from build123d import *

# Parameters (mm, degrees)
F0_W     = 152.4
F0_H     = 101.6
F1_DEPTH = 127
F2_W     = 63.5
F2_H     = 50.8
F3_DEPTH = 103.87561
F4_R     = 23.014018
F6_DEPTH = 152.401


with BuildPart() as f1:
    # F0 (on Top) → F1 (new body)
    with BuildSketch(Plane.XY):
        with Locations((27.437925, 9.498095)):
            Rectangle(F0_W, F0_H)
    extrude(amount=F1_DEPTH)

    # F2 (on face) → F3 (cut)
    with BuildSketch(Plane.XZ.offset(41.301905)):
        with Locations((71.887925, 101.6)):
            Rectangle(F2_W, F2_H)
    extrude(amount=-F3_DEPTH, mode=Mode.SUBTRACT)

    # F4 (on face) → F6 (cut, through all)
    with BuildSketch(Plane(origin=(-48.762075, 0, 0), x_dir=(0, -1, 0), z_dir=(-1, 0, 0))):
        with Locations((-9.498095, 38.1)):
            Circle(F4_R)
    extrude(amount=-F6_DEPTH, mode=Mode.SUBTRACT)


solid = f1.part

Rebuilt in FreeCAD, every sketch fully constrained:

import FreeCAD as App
import Part
import Sketcher
from FreeCAD import Vector
Q = App.Units.Quantity

doc = App.newDocument("Part")
params = doc.addObject("Spreadsheet::Sheet", "Params")
for row, (alias, value) in enumerate([
    ("sketch1_width", "6 in"),
    ("sketch1_height", "4 in"),
    ("pad1_length", "5 in"),
    ("sketch2_height", "2 in"),
    ("sketch2_width", "2.5 in"),
    ("pocket1_length", "103.87561 mm"),
], start=1):
    params.set(f"A{row}", alias)
    params.set(f"B{row}", "=" + value)
    params.setAlias(f"B{row}", alias)

body = doc.addObject("PartDesign::Body", "Body")

# Sketch on XY plane
sketch1 = body.newObject("Sketcher::SketchObject", "Sketch")
sketch1.AttachmentSupport = (doc.getObject("XY_Plane"), [""])
sketch1.MapMode = "FlatFace"
sketch1.addGeometry([
    Part.LineSegment(Vector(-49, 60, 0), Vector(-49, -41, 0)),
    Part.LineSegment(Vector(-49, -41, 0), Vector(104, -41, 0)),
    Part.LineSegment(Vector(104, -41, 0), Vector(104, 60, 0)),
    Part.LineSegment(Vector(104, 60, 0), Vector(-49, 60, 0)),
], False)
sketch1.addConstraint([
    Sketcher.Constraint("Coincident", 0, 2, 1, 1),
    Sketcher.Constraint("Coincident", 1, 2, 2, 1),
    Sketcher.Constraint("Coincident", 2, 2, 3, 1),
    Sketcher.Constraint("Coincident", 3, 2, 0, 1),
    Sketcher.Constraint("Vertical", 0),
    Sketcher.Constraint("Horizontal", 1),
    Sketcher.Constraint("Vertical", 2),
    Sketcher.Constraint("Horizontal", 3),
    Sketcher.Constraint("DistanceX", 1, 1, 1, 2, Q("6 in")),
    Sketcher.Constraint("DistanceY", 0, 2, 0, 1, Q("4 in")),
    Sketcher.Constraint("DistanceX", 0, 2, -1, 1, 48.762075),
    Sketcher.Constraint("DistanceY", 0, 2, -1, 1, 41.301905),
])
sketch1.setExpression("Constraints[8]", "Params.sketch1_width")
sketch1.setExpression("Constraints[9]", "Params.sketch1_height")
pad1 = body.newObject("PartDesign::Pad", "Pad")
pad1.Profile = sketch1
pad1.setExpression("Length", "Params.pad1_length")

# Sketch on XZ plane
sketch2 = body.newObject("Sketcher::SketchObject", "Sketch001")
sketch2.AttachmentSupport = (doc.getObject("XZ_Plane"), [""])
sketch2.MapMode = "FlatFace"
sketch2.AttachmentOffset = App.Placement(Vector(0, 0, 41.301905), App.Rotation())
sketch2.addGeometry([
    Part.LineSegment(Vector(40, 127, 0), Vector(40, 76, 0)),
    Part.LineSegment(Vector(40, 76, 0), Vector(104, 76, 0)),
    Part.LineSegment(Vector(104, 76, 0), Vector(104, 127, 0)),
    Part.LineSegment(Vector(104, 127, 0), Vector(40, 127, 0)),
], False)
sketch2.addConstraint([
    Sketcher.Constraint("Coincident", 0, 2, 1, 1),
    Sketcher.Constraint("Coincident", 1, 2, 2, 1),
    Sketcher.Constraint("Coincident", 2, 2, 3, 1),
    Sketcher.Constraint("Coincident", 3, 2, 0, 1),
    Sketcher.Constraint("Vertical", 0),
    Sketcher.Constraint("Horizontal", 1),
    Sketcher.Constraint("Vertical", 2),
    Sketcher.Constraint("Horizontal", 3),
    Sketcher.Constraint("DistanceY", 0, 2, 0, 1, Q("2 in")),
    Sketcher.Constraint("DistanceX", 1, 1, 1, 2, Q("2.5 in")),
    Sketcher.Constraint("DistanceY", -1, 1, 0, 2, Q("3 in")),
    Sketcher.Constraint("DistanceX", -1, 1, 0, 2, 40.137925),
])
sketch2.setExpression("Constraints[8]", "Params.sketch2_height")
sketch2.setExpression("Constraints[9]", "Params.sketch2_width")
pocket1 = body.newObject("PartDesign::Pocket", "Pocket")
pocket1.Profile = sketch2
pocket1.setExpression("Length", "Params.pocket1_length")

# Sketch on YZ plane
sketch3 = body.newObject("Sketcher::SketchObject", "Sketch002")
sketch3.AttachmentSupport = (doc.getObject("YZ_Plane"), [""])
sketch3.MapMode = "FlatFace"
sketch3.AttachmentOffset = App.Placement(Vector(0, 0, -48.762075), App.Rotation())
sketch3.addGeometry(Part.Circle(Vector(9, 38, 0), Vector(0, 0, 1), 23), False)
sketch3.addConstraint([
    Sketcher.Constraint("DistanceY", -1, 1, 0, 3, Q("1.5 in")),
    Sketcher.Constraint("Diameter", 0, 46.028036),
    Sketcher.Constraint("DistanceX", -1, 1, 0, 3, 9.498095),
])
pocket2 = body.newObject("PartDesign::Pocket", "Pocket001")
pocket2.Profile = sketch3
pocket2.Type = "ThroughAll"
pocket2.Reversed = True

doc.recompute()
